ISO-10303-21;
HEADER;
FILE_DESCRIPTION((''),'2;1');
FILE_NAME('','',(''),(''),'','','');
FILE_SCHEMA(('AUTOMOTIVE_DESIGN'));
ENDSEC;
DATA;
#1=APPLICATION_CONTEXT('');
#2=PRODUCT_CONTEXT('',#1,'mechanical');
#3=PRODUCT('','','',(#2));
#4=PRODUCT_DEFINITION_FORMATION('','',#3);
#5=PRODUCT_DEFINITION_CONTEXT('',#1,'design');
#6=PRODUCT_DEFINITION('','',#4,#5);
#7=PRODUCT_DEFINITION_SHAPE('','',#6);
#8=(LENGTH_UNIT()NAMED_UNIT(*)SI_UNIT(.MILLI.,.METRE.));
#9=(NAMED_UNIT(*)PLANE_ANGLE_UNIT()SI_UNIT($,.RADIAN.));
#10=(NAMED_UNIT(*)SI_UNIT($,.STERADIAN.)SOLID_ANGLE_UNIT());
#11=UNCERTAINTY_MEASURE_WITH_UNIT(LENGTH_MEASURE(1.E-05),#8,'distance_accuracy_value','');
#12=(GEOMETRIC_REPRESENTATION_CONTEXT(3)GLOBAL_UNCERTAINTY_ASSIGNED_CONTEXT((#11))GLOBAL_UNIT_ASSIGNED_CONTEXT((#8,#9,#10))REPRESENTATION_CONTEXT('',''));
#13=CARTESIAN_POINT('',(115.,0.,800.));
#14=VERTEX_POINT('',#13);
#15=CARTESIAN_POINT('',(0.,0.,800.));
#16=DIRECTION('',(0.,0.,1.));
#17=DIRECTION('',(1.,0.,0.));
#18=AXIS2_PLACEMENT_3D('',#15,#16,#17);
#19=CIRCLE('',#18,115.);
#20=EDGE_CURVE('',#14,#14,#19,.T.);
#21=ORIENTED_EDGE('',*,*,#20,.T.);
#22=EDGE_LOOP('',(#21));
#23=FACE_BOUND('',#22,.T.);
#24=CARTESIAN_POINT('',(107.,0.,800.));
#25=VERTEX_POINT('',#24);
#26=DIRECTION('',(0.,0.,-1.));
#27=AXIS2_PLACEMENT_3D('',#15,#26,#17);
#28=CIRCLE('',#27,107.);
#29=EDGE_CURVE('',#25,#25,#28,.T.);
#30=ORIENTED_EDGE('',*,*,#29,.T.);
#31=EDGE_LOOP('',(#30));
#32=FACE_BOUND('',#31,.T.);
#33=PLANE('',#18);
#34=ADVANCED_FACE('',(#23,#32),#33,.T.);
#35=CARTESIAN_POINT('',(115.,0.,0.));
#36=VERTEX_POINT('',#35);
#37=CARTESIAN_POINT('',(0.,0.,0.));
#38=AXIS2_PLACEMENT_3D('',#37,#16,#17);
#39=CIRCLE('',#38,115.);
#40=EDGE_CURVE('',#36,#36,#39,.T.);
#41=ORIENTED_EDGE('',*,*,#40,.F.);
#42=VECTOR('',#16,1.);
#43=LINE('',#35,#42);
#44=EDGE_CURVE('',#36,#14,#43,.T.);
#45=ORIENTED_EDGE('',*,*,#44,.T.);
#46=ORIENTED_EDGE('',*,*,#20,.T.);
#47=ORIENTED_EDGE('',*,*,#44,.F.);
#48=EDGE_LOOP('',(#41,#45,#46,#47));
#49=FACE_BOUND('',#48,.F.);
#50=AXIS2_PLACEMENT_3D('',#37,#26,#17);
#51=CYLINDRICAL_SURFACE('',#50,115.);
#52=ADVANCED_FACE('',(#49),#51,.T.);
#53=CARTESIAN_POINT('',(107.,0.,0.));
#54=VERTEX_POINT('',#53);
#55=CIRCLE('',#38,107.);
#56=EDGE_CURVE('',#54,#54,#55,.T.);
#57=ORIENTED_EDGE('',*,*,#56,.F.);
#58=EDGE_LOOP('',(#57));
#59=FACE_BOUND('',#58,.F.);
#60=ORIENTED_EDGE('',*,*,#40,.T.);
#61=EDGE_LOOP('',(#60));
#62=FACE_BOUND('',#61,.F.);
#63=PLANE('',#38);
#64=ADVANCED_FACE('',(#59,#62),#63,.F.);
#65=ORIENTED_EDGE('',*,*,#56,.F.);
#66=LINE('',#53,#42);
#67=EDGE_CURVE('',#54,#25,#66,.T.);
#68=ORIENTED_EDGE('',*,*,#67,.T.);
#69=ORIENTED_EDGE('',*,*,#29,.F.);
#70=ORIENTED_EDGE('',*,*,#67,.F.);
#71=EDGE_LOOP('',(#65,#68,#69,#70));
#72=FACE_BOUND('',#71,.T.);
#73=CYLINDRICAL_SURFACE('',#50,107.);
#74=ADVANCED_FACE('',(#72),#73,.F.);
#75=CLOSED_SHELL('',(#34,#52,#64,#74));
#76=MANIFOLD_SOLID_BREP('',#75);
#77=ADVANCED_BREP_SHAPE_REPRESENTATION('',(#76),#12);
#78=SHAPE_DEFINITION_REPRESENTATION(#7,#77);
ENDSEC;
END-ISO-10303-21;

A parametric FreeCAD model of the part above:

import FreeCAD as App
import Part
import Sketcher

doc = App.newDocument("Part")
params = doc.addObject("Spreadsheet::Sheet", "Params")
for row, (alias, value) in enumerate([
    ("sketch1_diameter", "230 mm"),
    ("pad1_length", "800 mm"),
    ("sketch2_diameter", "214 mm"),
], start=1):
    params.set(f"A{row}", alias)
    params.set(f"B{row}", "=" + value)
    params.setAlias(f"B{row}", alias)

body = doc.addObject("PartDesign::Body", "Body")

# Sketch on XY plane
sketch1 = body.newObject("Sketcher::SketchObject", "Sketch")
sketch1.AttachmentSupport = (doc.getObject("XY_Plane"), [""])
sketch1.MapMode = "FlatFace"
sketch1.addGeometry(Part.Circle(App.Vector(0, 0, 0), App.Vector(0, 0, 1), 115), False)
sketch1.addConstraint([
    Sketcher.Constraint("Coincident", 0, 3, -1, 1),
    Sketcher.Constraint("Diameter", 0, 230.0),
])
sketch1.setExpression("Constraints[1]", "Params.sketch1_diameter")
pad1 = body.newObject("PartDesign::Pad", "Pad")
pad1.Profile = sketch1
pad1.setExpression("Length", "Params.pad1_length")

# Sketch on XY plane
sketch2 = body.newObject("Sketcher::SketchObject", "Sketch001")
sketch2.AttachmentSupport = (doc.getObject("XY_Plane"), [""])
sketch2.MapMode = "FlatFace"
sketch2.addGeometry(Part.Circle(App.Vector(0, 0, 0), App.Vector(0, 0, 1), 107), False)
sketch2.addConstraint([
    Sketcher.Constraint("Coincident", 0, 3, -1, 1),
    Sketcher.Constraint("Diameter", 0, 214.0),
])
sketch2.setExpression("Constraints[1]", "Params.sketch2_diameter")
pocket1 = body.newObject("PartDesign::Pocket", "Pocket")
pocket1.Profile = sketch2
pocket1.Type = "ThroughAll"
pocket1.Reversed = True

doc.recompute()
